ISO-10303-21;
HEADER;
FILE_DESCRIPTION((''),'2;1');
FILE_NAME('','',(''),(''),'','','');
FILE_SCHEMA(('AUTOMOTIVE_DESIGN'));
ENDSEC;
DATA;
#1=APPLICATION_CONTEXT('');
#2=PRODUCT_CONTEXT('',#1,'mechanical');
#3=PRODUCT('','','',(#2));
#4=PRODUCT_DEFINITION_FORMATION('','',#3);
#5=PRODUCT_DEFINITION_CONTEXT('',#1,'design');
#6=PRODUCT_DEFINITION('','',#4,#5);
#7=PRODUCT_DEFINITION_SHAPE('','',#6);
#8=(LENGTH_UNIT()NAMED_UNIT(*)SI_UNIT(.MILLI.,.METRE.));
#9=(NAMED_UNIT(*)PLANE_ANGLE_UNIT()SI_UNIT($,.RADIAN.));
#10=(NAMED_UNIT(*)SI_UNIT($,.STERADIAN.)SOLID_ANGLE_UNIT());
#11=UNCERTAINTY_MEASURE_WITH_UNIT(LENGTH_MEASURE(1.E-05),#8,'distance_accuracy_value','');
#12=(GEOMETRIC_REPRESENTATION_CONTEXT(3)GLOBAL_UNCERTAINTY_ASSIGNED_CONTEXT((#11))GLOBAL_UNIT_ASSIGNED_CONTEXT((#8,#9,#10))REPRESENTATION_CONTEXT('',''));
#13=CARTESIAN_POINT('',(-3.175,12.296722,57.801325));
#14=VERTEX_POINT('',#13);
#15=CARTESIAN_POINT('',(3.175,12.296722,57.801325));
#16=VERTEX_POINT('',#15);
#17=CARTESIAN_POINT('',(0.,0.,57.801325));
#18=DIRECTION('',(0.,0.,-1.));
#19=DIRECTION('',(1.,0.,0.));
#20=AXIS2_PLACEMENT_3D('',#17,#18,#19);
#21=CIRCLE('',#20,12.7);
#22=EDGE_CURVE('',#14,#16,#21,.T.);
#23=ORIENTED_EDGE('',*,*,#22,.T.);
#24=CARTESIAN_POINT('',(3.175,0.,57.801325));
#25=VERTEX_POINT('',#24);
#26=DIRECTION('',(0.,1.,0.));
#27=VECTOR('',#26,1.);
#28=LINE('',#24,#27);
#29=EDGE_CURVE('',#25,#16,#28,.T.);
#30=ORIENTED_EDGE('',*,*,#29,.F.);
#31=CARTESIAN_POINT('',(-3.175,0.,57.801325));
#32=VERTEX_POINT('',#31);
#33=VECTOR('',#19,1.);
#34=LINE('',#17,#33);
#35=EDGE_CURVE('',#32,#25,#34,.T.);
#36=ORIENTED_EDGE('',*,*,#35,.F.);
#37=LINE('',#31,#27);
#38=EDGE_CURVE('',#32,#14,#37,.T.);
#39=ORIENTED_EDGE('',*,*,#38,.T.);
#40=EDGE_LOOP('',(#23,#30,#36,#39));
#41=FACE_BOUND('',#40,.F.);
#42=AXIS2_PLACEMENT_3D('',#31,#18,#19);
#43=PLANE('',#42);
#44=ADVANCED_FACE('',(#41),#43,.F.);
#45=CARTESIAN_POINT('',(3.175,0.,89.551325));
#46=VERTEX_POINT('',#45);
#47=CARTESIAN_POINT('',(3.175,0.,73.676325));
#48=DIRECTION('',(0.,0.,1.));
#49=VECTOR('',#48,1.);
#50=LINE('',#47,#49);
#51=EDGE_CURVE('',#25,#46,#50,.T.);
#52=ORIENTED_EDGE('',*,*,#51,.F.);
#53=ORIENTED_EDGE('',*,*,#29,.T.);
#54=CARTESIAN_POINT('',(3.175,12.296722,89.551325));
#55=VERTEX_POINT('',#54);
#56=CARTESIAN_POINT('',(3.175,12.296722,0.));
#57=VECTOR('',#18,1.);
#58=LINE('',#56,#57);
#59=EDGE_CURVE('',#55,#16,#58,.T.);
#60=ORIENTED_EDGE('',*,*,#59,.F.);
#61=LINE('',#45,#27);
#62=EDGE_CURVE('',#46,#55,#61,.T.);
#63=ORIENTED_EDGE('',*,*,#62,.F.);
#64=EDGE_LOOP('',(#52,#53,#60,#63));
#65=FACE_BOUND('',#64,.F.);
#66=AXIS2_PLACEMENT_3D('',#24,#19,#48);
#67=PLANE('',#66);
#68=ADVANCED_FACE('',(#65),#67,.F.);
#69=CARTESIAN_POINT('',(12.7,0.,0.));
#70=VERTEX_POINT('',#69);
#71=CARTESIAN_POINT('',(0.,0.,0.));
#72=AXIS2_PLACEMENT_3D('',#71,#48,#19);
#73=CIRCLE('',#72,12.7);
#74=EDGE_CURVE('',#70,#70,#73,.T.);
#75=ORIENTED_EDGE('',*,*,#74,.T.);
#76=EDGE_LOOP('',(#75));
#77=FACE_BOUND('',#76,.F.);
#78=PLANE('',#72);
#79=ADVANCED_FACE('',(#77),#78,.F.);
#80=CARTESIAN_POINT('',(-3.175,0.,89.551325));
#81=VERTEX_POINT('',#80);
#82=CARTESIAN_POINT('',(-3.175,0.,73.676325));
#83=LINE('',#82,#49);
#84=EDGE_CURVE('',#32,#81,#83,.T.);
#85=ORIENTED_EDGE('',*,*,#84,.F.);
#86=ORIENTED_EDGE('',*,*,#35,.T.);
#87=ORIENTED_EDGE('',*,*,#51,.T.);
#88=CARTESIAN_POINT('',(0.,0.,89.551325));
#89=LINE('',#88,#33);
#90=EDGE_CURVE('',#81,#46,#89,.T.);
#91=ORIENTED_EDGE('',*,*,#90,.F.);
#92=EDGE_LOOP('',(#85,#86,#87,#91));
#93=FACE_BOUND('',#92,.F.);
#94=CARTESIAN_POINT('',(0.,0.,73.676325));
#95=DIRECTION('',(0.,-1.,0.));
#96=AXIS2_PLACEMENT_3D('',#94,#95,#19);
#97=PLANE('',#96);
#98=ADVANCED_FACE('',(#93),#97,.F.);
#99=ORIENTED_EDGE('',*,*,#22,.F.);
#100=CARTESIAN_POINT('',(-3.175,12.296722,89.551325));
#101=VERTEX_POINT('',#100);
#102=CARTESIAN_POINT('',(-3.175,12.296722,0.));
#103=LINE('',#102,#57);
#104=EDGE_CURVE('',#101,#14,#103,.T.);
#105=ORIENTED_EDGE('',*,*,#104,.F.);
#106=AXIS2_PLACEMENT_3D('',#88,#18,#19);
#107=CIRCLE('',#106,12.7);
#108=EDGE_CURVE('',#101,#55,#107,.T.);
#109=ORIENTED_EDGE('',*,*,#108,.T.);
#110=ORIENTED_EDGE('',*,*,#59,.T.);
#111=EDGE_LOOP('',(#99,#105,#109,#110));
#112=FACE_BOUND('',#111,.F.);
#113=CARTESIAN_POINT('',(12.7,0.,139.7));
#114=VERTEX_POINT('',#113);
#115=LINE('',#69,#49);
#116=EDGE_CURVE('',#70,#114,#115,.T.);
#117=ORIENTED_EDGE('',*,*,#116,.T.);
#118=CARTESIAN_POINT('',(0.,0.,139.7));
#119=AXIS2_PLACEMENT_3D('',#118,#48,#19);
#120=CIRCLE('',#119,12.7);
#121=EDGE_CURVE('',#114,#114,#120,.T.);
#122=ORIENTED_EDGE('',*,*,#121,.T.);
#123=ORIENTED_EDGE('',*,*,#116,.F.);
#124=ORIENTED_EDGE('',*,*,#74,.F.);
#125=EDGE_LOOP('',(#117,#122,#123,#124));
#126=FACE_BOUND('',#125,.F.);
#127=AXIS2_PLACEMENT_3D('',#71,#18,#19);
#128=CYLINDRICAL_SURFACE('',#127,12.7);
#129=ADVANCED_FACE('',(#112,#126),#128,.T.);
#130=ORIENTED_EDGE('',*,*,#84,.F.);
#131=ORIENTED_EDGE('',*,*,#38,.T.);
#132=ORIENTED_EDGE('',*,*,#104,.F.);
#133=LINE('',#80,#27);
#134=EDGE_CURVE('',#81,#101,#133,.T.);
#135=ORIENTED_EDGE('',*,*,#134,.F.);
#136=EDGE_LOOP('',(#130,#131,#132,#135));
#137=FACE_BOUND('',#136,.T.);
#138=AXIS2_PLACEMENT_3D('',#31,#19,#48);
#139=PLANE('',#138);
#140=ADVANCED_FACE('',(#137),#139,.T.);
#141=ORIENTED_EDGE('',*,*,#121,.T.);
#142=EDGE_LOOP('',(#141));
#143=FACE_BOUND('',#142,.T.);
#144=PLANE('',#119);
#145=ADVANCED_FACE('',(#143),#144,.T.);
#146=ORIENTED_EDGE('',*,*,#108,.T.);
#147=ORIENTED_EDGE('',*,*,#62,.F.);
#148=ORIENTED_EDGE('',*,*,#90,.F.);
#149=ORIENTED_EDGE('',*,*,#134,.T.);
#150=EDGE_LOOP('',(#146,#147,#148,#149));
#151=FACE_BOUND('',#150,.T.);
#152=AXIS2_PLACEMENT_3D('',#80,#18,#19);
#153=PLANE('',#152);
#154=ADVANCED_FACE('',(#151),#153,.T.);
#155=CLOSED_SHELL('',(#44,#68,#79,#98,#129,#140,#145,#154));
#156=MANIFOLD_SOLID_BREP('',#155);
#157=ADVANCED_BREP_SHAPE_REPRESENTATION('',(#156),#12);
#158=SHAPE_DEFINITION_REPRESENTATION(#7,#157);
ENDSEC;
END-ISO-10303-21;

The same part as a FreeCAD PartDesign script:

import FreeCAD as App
import Part
import Sketcher

V = App.Vector
Q = App.Units.Quantity


def add_polygon(sketch, points):
    """Adds a closed chain of lines whose ends are joined by coincident constraints."""
    first, n = sketch.GeometryCount, len(points)
    for a, b in zip(points, points[1:] + points[:1]):
        sketch.addGeometry(Part.LineSegment(App.Vector(*a, 0), App.Vector(*b, 0)), False)
    for i in range(n):
        sketch.addConstraint(Sketcher.Constraint("Coincident", first + i, 2, first + (i + 1) % n, 1))

doc = App.newDocument("Part")
body = doc.addObject("PartDesign::Body", "Body")

sketch1 = doc.addObject("Sketcher::SketchObject", "Sketch")
body.addObject(sketch1)
sketch1.AttachmentSupport = (doc.XY_Plane, [""])
sketch1.MapMode = "FlatFace"
sketch1.addGeometry(Part.Circle(V(0, 0, 0), V(0, 0, 1), 13), False)
sketch1.addConstraint([
    Sketcher.Constraint("Coincident", 0, 3, -1, 1),
    Sketcher.Constraint("Diameter", 0, Q("1 in")),
])
pad1 = doc.addObject("PartDesign::Pad", "Pad")
body.addObject(pad1)
pad1.Profile = sketch1
pad1.Length = Q("5.5 in")

sketch2 = doc.addObject("Sketcher::SketchObject", "Sketch001")
body.addObject(sketch2)
sketch2.AttachmentSupport = (doc.XZ_Plane, [""])
sketch2.MapMode = "FlatFace"
add_polygon(sketch2, [(-3, 90), (-3, 58), (3, 58), (3, 90)])
sketch2.addConstraint([
    Sketcher.Constraint("Vertical", 0),
    Sketcher.Constraint("Horizontal", 1),
    Sketcher.Constraint("Vertical", 2),
    Sketcher.Constraint("Horizontal", 3),
    Sketcher.Constraint("DistanceX", 1, 1, 1, 2, Q("0.25 in")),
    Sketcher.Constraint("DistanceY", 0, 2, 0, 1, Q("1.25 in")),
    Sketcher.Constraint("DistanceX", 0, 2, -1, 1, Q("0.125 in")),
    Sketcher.Constraint("DistanceY", -1, 1, 0, 2, Q("57.801325 mm")),
])
pocket1 = doc.addObject("PartDesign::Pocket", "Pocket")
body.addObject(pocket1)
pocket1.Profile = sketch2
pocket1.Length = Q("1.21 in")

doc.recompute()
